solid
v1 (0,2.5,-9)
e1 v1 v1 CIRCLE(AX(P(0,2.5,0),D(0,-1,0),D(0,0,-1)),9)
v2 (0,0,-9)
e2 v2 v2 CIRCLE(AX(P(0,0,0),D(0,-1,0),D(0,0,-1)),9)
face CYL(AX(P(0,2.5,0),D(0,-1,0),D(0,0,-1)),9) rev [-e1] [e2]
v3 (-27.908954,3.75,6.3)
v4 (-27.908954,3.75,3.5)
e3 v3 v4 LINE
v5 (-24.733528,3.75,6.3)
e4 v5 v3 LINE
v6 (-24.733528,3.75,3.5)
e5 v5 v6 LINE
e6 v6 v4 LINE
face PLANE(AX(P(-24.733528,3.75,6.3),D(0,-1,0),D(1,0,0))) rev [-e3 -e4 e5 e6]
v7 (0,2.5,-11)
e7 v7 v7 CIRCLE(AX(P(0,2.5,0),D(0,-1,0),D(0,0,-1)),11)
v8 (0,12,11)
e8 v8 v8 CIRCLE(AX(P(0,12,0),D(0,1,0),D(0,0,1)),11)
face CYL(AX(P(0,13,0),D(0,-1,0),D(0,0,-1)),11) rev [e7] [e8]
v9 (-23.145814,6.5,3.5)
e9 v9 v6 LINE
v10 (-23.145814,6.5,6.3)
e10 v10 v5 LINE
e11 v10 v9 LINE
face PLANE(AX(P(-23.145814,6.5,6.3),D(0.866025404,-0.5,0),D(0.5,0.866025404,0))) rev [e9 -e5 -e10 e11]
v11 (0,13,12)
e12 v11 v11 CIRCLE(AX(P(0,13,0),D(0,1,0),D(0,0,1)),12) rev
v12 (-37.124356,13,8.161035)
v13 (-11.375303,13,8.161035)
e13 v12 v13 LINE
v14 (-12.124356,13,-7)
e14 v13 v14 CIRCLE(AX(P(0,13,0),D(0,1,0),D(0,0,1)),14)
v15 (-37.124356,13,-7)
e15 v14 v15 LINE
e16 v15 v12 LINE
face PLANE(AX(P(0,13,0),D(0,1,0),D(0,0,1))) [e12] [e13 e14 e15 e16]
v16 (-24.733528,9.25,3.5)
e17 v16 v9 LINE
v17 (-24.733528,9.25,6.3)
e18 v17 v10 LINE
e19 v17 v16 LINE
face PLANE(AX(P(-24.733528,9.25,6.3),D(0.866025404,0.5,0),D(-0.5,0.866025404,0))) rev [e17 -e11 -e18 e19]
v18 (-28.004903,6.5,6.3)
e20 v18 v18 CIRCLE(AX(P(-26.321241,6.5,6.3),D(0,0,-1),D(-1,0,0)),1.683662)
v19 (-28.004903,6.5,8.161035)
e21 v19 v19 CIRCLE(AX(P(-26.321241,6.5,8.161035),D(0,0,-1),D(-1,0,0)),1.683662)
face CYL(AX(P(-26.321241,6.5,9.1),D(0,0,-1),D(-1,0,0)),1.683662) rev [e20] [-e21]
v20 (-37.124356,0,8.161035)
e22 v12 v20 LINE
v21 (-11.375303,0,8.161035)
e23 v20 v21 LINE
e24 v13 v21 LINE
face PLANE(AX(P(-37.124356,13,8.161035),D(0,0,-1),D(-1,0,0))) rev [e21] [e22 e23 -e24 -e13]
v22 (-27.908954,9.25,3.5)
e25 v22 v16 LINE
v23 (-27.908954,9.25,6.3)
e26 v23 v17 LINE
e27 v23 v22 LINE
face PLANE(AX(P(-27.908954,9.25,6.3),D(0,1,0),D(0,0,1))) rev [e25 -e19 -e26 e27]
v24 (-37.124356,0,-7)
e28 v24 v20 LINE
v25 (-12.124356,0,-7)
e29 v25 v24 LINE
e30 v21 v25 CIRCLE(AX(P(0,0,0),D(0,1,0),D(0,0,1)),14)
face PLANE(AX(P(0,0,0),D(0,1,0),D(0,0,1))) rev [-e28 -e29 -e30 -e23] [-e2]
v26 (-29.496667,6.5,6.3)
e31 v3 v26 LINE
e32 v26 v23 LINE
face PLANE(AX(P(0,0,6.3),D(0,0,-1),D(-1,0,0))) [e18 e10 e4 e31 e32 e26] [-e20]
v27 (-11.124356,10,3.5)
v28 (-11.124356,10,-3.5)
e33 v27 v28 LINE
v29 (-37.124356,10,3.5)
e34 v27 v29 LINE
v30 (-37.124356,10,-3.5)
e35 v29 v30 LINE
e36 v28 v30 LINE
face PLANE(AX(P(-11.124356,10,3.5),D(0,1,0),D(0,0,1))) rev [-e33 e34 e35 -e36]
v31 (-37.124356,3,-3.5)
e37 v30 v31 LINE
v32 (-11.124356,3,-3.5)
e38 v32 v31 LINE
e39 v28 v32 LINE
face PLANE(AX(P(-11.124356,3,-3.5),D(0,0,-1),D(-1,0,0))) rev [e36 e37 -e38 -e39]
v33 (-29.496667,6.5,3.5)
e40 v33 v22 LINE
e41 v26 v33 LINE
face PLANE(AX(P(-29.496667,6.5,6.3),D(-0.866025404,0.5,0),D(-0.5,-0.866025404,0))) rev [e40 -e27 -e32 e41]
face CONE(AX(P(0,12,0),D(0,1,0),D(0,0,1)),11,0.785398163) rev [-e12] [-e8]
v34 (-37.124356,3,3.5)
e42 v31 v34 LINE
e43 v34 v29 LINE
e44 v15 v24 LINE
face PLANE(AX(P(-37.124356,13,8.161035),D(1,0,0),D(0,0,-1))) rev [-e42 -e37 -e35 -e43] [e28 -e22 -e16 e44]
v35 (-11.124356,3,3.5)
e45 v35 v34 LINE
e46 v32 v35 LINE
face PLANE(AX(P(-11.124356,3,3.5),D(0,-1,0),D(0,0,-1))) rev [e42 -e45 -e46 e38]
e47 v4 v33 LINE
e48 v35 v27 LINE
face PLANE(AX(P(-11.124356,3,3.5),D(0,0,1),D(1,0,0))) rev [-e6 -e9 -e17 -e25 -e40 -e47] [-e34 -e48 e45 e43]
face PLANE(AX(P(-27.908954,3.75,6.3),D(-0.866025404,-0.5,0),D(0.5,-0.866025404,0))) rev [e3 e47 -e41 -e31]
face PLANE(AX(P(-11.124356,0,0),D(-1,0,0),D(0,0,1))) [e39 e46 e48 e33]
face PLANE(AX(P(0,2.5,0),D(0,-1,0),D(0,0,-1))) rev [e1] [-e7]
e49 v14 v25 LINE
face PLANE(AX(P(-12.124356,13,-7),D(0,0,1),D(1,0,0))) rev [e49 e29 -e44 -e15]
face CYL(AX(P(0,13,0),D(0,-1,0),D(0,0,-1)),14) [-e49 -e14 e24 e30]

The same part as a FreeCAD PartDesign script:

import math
import FreeCAD as App
import Part
import Sketcher
Q = App.Units.Quantity


def edges_at(feature, points):
    """Names of the edges that pass closest to the given points."""
    edges = feature.Shape.Edges
    near = lambda p: min(range(len(edges)), key=lambda i: edges[i].distToShape(Part.Vertex(*p))[0])
    return sorted({f"Edge{near(p) + 1}" for p in points})


def add_polygon(sketch, points):
    """Adds a closed chain of lines whose ends are joined by coincident constraints."""
    first, n = sketch.GeometryCount, len(points)
    for a, b in zip(points, points[1:] + points[:1]):
        sketch.addGeometry(Part.LineSegment(App.Vector(*a, 0), App.Vector(*b, 0)), False)
    for i in range(n):
        sketch.addConstraint(Sketcher.Constraint("Coincident", first + i, 2, first + (i + 1) % n, 1))

doc = App.newDocument("Part")
body = doc.addObject("PartDesign::Body", "Body")

sketch1 = doc.addObject("Sketcher::SketchObject", "Sketch")
body.addObject(sketch1)
sketch1.AttachmentSupport = (doc.XZ_Plane, [""])
sketch1.MapMode = "FlatFace"
sketch1.addGeometry(Part.LineSegment(App.Vector(-12.124356, -7, 0), App.Vector(-37.124356, -7, 0)), False)
sketch1.addGeometry(Part.LineSegment(App.Vector(-37.124356, -7, 0), App.Vector(-37.124356, 8.161035, 0)), False)
sketch1.addGeometry(Part.LineSegment(App.Vector(-37.124356, 8.161035, 0), App.Vector(-11.375303, 8.161035, 0)), False)
sketch1.addGeometry(Part.ArcOfCircle(Part.Circle(App.Vector(0, 0, 0), App.Vector(0, 0, 1), 14), math.radians(-150), math.radians(144.343036)), False)
sketch1.addGeometry(Part.Circle(App.Vector(0, 0, 0), App.Vector(0, 0, 1), 11), False)
sketch1.addConstraint(Sketcher.Constraint("Coincident", 0, 2, 1, 1))
sketch1.addConstraint(Sketcher.Constraint("Coincident", 1, 2, 2, 1))
sketch1.addConstraint(Sketcher.Constraint("Coincident", 2, 2, 3, 2))
sketch1.addConstraint(Sketcher.Constraint("Coincident", 3, 1, 0, 1))
sketch1.addConstraint(Sketcher.Constraint("Horizontal", 0))
sketch1.addConstraint(Sketcher.Constraint("Vertical", 1))
sketch1.addConstraint(Sketcher.Constraint("Horizontal", 2))
sketch1.addConstraint(Sketcher.Constraint("Coincident", 3, 3, -1, 1))
sketch1.addConstraint(Sketcher.Constraint("Coincident", 4, 3, -1, 1))
sketch1.addConstraint(Sketcher.Constraint("Diameter", 4, Q("22 mm")))
sketch1.addConstraint(Sketcher.Constraint("Radius", 3, Q("14 mm")))
sketch1.addConstraint(Sketcher.Constraint("DistanceX", 0, 2, 0, 1, Q("25 mm")))
sketch1.addConstraint(Sketcher.Constraint("DistanceY", 0, 2, -1, 1, Q("7 mm")))
sketch1.addConstraint(Sketcher.Constraint("DistanceX", 2, 1, 2, 2, Q("25.749053 mm")))
pad1 = doc.addObject("PartDesign::Pad", "Pad")
body.addObject(pad1)
pad1.Profile = sketch1
pad1.Length = 13
pad1.Reversed = True

sketch2 = doc.addObject("Sketcher::SketchObject", "Sketch001")
body.addObject(sketch2)
sketch2.AttachmentSupport = (doc.YZ_Plane, [""])
sketch2.MapMode = "FlatFace"
sketch2.AttachmentOffset = App.Placement(App.Vector(0, 0, -37.124356), App.Rotation())
add_polygon(sketch2, [(10, -3.5), (3, -3.5), (3, 3.5), (10, 3.5)])
sketch2.addConstraint(Sketcher.Constraint("Horizontal", 0))
sketch2.addConstraint(Sketcher.Constraint("Vertical", 1))
sketch2.addConstraint(Sketcher.Constraint("Horizontal", 2))
sketch2.addConstraint(Sketcher.Constraint("Vertical", 3))
sketch2.addConstraint(Sketcher.Constraint("Equal", 2, 1))
sketch2.addConstraint(Sketcher.Constraint("DistanceX", 0, 2, 0, 1, Q("7 mm")))
sketch2.addConstraint(Sketcher.Constraint("DistanceX", -1, 1, 0, 2, Q("3 mm")))
sketch2.addConstraint(Sketcher.Constraint("DistanceY", 0, 2, -1, 1, Q("3.5 mm")))
pocket1 = doc.addObject("PartDesign::Pocket", "Pocket")
body.addObject(pocket1)
pocket1.Profile = sketch2
pocket1.Length = 26
pocket1.Reversed = True

sketch3 = doc.addObject("Sketcher::SketchObject", "Sketch002")
body.addObject(sketch3)
sketch3.AttachmentSupport = (doc.XY_Plane, [""])
sketch3.MapMode = "FlatFace"
sketch3.AttachmentOffset = App.Placement(App.Vector(0, 0, 3.5), App.Rotation())
add_polygon(sketch3, [(-23.145814, 6.5), (-24.733528, 3.75), (-27.908954, 3.75), (-29.496667, 6.5), (-27.908954, 9.25), (-24.733528, 9.25)])
sketch3.addConstraint(Sketcher.Constraint("Horizontal", 1))
sketch3.addConstraint(Sketcher.Constraint("Horizontal", 4))
sketch3.addConstraint(Sketcher.Constraint("Parallel", 0, 3))
sketch3.addConstraint(Sketcher.Constraint("Parallel", 2, 5))
sketch3.addConstraint(Sketcher.Constraint("Horizontal", 2, 2, 5, 2))
sketch3.addConstraint(Sketcher.Constraint("Vertical", 1, 2, 3, 2))
sketch3.addConstraint(Sketcher.Constraint("Vertical", 0, 2, 4, 2))
sketch3.addConstraint(Sketcher.Constraint("Angle", 0, Q("-120 deg")))
sketch3.addConstraint(Sketcher.Constraint("DistanceY", -1, 1, 2, 2, Q("6.5 mm")))
sketch3.addConstraint(Sketcher.Constraint("DistanceY", 1, 2, 3, 2, Q("5.5 mm")))
sketch3.addConstraint(Sketcher.Constraint("DistanceX", 1, 2, 1, 1, Q("3.175426 mm")))
sketch3.addConstraint(Sketcher.Constraint("DistanceX", 0, 2, -1, 1, Q("24.733528 mm")))
pocket2 = doc.addObject("PartDesign::Pocket", "Pocket001")
body.addObject(pocket2)
pocket2.Profile = sketch3
pocket2.Length = 2.8
pocket2.Reversed = True

sketch4 = doc.addObject("Sketcher::SketchObject", "Sketch003")
body.addObject(sketch4)
sketch4.AttachmentSupport = (doc.XY_Plane, [""])
sketch4.MapMode = "FlatFace"
sketch4.AttachmentOffset = App.Placement(App.Vector(0, 0, 6.3), App.Rotation())
sketch4.addGeometry(Part.Circle(App.Vector(-26.321241, 6.5, 0), App.Vector(0, 0, 1), 1.683662), False)
sketch4.addConstraint(Sketcher.Constraint("DistanceY", -1, 1, 0, 3, Q("6.5 mm")))
sketch4.addConstraint(Sketcher.Constraint("Diameter", 0, Q("3.367324 mm")))
sketch4.addConstraint(Sketcher.Constraint("DistanceX", 0, 3, -1, 1, Q("26.321241 mm")))
pocket3 = doc.addObject("PartDesign::Pocket", "Pocket002")
body.addObject(pocket3)
pocket3.Profile = sketch4
pocket3.Length = 2.8
pocket3.Reversed = True

sketch5 = doc.addObject("Sketcher::SketchObject", "Sketch004")
body.addObject(sketch5)
sketch5.AttachmentSupport = (doc.XZ_Plane, [""])
sketch5.MapMode = "FlatFace"
sketch5.addGeometry(Part.Circle(App.Vector(0, 0, 0), App.Vector(0, 0, 1), 11), False)
sketch5.addGeometry(Part.Circle(App.Vector(0, 0, 0), App.Vector(0, 0, 1), 9), False)
sketch5.addConstraint(Sketcher.Constraint("Coincident", 0, 3, -1, 1))
sketch5.addConstraint(Sketcher.Constraint("Coincident", 1, 3, -1, 1))
sketch5.addConstraint(Sketcher.Constraint("Diameter", 0, Q("22 mm")))
sketch5.addConstraint(Sketcher.Constraint("Diameter", 1, Q("18 mm")))
pad2 = doc.addObject("PartDesign::Pad", "Pad001")
body.addObject(pad2)
pad2.Profile = sketch5
pad2.Length = 2.5
pad2.Reversed = True
doc.recompute()

chamfer = doc.addObject("PartDesign::Chamfer", "Chamfer")
body.addObject(chamfer)
chamfer.Base = (pad2, edges_at(pad2, [(-11, 13, 0)]))
chamfer.Size = 1

doc.recompute()
